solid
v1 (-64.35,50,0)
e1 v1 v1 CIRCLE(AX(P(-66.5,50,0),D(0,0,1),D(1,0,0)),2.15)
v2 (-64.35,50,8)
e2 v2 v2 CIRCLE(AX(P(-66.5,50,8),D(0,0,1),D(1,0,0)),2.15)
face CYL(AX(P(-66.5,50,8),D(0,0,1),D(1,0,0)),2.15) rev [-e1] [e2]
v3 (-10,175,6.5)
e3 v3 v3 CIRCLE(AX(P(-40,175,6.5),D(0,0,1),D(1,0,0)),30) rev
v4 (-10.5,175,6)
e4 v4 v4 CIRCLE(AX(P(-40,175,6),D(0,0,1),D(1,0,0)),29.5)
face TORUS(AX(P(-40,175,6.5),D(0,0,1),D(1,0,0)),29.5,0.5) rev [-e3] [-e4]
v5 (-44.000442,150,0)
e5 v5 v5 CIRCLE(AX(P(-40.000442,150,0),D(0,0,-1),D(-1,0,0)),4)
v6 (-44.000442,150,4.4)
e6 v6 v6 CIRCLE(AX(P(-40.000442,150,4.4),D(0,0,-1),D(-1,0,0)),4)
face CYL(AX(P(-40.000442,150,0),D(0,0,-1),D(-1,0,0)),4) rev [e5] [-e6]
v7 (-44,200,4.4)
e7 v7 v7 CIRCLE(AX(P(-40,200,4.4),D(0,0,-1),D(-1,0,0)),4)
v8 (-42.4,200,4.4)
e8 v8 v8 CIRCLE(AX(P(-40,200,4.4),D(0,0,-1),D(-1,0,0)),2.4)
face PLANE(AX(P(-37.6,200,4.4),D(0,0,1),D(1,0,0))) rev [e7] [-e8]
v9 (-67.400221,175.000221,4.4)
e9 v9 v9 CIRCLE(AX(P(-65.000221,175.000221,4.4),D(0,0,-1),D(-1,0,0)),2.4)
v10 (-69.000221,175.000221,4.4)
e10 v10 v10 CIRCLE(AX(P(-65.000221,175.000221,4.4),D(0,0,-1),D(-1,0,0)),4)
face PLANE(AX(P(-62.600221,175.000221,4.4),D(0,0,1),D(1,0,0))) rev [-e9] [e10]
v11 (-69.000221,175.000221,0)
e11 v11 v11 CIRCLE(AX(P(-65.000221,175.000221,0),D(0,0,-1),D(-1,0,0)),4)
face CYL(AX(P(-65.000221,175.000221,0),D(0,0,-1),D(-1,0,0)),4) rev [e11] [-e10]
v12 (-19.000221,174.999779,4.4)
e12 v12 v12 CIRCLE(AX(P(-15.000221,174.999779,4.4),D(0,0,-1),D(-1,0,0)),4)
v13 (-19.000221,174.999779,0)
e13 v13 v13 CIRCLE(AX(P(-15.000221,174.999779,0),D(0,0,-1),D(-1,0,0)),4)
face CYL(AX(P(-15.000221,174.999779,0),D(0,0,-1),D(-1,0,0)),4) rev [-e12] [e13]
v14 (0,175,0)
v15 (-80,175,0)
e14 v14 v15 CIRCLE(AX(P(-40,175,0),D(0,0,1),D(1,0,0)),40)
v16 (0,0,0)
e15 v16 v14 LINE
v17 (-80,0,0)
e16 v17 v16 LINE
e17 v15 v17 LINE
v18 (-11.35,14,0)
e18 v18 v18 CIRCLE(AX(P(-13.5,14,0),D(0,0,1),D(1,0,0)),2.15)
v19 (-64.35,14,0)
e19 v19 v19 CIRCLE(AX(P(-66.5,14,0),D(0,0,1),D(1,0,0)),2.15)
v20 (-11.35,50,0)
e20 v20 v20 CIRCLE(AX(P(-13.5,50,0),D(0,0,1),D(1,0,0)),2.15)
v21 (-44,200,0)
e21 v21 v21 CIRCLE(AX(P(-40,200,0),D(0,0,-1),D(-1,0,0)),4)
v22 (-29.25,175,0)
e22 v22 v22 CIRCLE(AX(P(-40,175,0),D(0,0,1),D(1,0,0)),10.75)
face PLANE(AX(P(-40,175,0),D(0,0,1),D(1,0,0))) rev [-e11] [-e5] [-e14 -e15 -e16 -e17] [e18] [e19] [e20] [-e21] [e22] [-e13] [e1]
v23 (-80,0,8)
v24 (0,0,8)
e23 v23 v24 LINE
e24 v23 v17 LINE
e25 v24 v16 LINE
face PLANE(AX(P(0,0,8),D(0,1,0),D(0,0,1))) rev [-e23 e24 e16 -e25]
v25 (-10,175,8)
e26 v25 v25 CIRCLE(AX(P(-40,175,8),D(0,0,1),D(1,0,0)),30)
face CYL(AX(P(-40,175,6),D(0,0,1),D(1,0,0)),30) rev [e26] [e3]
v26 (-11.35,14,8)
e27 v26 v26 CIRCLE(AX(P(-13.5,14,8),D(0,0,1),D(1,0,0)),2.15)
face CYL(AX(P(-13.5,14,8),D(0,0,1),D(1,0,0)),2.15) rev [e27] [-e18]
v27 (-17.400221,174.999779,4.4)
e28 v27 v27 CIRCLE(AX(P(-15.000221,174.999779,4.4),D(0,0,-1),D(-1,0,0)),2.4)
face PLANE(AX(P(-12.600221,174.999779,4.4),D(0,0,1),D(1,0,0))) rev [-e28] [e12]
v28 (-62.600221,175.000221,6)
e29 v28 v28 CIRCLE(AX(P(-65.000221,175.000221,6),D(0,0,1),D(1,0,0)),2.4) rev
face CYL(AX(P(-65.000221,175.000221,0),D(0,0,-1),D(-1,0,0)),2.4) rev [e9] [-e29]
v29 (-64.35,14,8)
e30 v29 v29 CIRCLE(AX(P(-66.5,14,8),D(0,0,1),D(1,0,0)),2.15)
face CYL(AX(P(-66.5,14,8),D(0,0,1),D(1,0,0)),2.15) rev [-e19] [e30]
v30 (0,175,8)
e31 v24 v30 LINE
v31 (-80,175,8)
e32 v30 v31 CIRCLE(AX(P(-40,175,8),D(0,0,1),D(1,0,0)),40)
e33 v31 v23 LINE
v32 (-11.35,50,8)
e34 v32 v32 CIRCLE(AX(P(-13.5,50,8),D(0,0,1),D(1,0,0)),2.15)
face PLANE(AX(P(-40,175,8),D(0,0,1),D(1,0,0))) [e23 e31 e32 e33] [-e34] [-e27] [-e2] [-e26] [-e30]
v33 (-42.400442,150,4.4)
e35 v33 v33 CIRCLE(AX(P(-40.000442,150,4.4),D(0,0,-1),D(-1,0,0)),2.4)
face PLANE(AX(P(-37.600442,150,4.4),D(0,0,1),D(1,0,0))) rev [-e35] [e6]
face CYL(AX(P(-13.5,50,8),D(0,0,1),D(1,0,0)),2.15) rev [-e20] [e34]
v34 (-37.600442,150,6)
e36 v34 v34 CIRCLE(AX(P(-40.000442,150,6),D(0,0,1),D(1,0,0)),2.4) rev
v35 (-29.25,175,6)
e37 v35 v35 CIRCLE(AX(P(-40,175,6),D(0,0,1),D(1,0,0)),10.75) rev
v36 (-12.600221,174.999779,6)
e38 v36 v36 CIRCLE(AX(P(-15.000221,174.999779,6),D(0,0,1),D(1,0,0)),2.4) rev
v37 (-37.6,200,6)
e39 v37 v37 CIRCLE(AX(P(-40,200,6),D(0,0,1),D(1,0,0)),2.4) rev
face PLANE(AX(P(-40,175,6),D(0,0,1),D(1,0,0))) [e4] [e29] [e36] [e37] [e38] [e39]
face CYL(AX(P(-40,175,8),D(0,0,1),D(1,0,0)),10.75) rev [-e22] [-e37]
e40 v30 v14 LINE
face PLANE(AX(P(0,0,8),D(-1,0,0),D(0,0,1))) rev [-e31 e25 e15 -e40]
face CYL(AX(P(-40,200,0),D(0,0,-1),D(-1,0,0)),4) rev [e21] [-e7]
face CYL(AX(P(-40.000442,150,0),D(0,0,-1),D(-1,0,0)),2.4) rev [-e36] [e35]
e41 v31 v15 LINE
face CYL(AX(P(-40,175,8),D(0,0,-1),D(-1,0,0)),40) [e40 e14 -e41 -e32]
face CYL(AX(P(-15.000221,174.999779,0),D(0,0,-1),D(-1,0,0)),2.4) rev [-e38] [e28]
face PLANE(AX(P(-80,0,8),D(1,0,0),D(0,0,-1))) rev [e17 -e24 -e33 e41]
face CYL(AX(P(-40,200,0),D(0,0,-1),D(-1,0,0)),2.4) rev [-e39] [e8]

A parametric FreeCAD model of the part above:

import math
import FreeCAD as App
import Part
import Sketcher
Q = App.Units.Quantity


def edges_at(feature, points):
    """Names of the edges that pass closest to the given points."""
    edges = feature.Shape.Edges
    near = lambda p: min(range(len(edges)), key=lambda i: edges[i].distToShape(Part.Vertex(*p))[0])
    return sorted({f"Edge{near(p) + 1}" for p in points})

doc = App.newDocument("Part")
body = doc.addObject("PartDesign::Body", "Body")

sketch1 = doc.addObject("Sketcher::SketchObject", "Sketch")
body.addObject(sketch1)
sketch1.AttachmentSupport = (doc.XY_Plane, [""])
sketch1.MapMode = "FlatFace"
sketch1.addGeometry(Part.LineSegment(App.Vector(-80, 0, 0), App.Vector(0, 0, 0)), False)
sketch1.addGeometry(Part.LineSegment(App.Vector(0, 0, 0), App.Vector(0, 175, 0)), False)
sketch1.addGeometry(Part.ArcOfCircle(Part.Circle(App.Vector(-40, 175, 0), App.Vector(0, 0, 1), 40), math.radians(0), math.radians(180)), False)
sketch1.addGeometry(Part.LineSegment(App.Vector(-80, 175, 0), App.Vector(-80, 0, 0)), False)
sketch1.addGeometry(Part.Circle(App.Vector(-40, 175, 0), App.Vector(0, 0, 1), 5), False)
sketch1.addConstraint(Sketcher.Constraint("Coincident", 0, 2, 1, 1))
sketch1.addConstraint(Sketcher.Constraint("Tangent", 1, 2, 2, 1))
sketch1.addConstraint(Sketcher.Constraint("Tangent", 2, 2, 3, 1))
sketch1.addConstraint(Sketcher.Constraint("Coincident", 3, 2, 0, 1))
sketch1.addConstraint(Sketcher.Constraint("Horizontal", 0))
sketch1.addConstraint(Sketcher.Constraint("Vertical", 1))
sketch1.addConstraint(Sketcher.Constraint("Vertical", 3))
sketch1.addConstraint(Sketcher.Constraint("Coincident", 0, 2, -1, 1))
sketch1.addConstraint(Sketcher.Constraint("Coincident", 4, 3, 2, 3))
sketch1.addConstraint(Sketcher.Constraint("Diameter", 4, Q("10 mm")))
sketch1.addConstraint(Sketcher.Constraint("Radius", 2, Q("40 mm")))
sketch1.addConstraint(Sketcher.Constraint("DistanceY", 1, 1, 1, 2, Q("175 mm")))
pad1 = doc.addObject("PartDesign::Pad", "Pad")
body.addObject(pad1)
pad1.Profile = sketch1
pad1.Length = 8

sketch2 = doc.addObject("Sketcher::SketchObject", "Sketch001")
body.addObject(sketch2)
sketch2.AttachmentSupport = (doc.XY_Plane, [""])
sketch2.MapMode = "FlatFace"
sketch2.AttachmentOffset = App.Placement(App.Vector(0, 0, 8), App.Rotation())
sketch2.addGeometry(Part.Circle(App.Vector(-66.5, 14, 0), App.Vector(0, 0, 1), 2.1), False)
sketch2.addGeometry(Part.Circle(App.Vector(-13.5, 14, 0), App.Vector(0, 0, 1), 2.1), False)
sketch2.addGeometry(Part.Circle(App.Vector(-13.5, 50, 0), App.Vector(0, 0, 1), 2.1), False)
sketch2.addGeometry(Part.Circle(App.Vector(-66.5, 50, 0), App.Vector(0, 0, 1), 2.1), False)
sketch2.addConstraint(Sketcher.Constraint("Equal", 0, 1))
sketch2.addConstraint(Sketcher.Constraint("Equal", 1, 2))
sketch2.addConstraint(Sketcher.Constraint("Equal", 2, 3))
sketch2.addConstraint(Sketcher.Constraint("Horizontal", 0, 3, 1, 3))
sketch2.addConstraint(Sketcher.Constraint("Horizontal", 2, 3, 3, 3))
sketch2.addConstraint(Sketcher.Constraint("Vertical", 1, 3, 2, 3))
sketch2.addConstraint(Sketcher.Constraint("Vertical", 0, 3, 3, 3))
sketch2.addConstraint(Sketcher.Constraint("Diameter", 0, Q("4.3 mm")))
sketch2.addConstraint(Sketcher.Constraint("DistanceY", -1, 1, 0, 3, Q("14 mm")))
sketch2.addConstraint(Sketcher.Constraint("DistanceY", -1, 1, 2, 3, Q("50 mm")))
sketch2.addConstraint(Sketcher.Constraint("DistanceX", 0, 3, 1, 3, Q("53 mm")))
sketch2.addConstraint(Sketcher.Constraint("DistanceX", 0, 3, -1, 1, Q("66.5 mm")))
doc.recompute()
hole = doc.addObject("PartDesign::Hole", "Hole")
body.addObject(hole)
hole.Profile = sketch2
hole.ThreadType = "None"
hole.Diameter = 4.3
hole.DepthType = "ThroughAll"

sketch3 = doc.addObject("Sketcher::SketchObject", "Sketch002")
body.addObject(sketch3)
sketch3.AttachmentSupport = (doc.XY_Plane, [""])
sketch3.MapMode = "FlatFace"
sketch3.AttachmentOffset = App.Placement(App.Vector(0, 0, 8), App.Rotation())
sketch3.addGeometry(Part.Circle(App.Vector(-40, 175, 0), App.Vector(0, 0, 1), 11), False)
sketch3.addConstraint(Sketcher.Constraint("Diameter", 0, Q("21.5 mm")))
sketch3.addConstraint(Sketcher.Constraint("DistanceX", 0, 3, -1, 1, Q("40 mm")))
sketch3.addConstraint(Sketcher.Constraint("DistanceY", -1, 1, 0, 3, Q("175 mm")))
doc.recompute()
hole2 = doc.addObject("PartDesign::Hole", "Hole001")
body.addObject(hole2)
hole2.Profile = sketch3
hole2.ThreadType = "None"
hole2.Diameter = 21.5
hole2.DepthType = "ThroughAll"

sketch4 = doc.addObject("Sketcher::SketchObject", "Sketch003")
body.addObject(sketch4)
sketch4.AttachmentSupport = (doc.XY_Plane, [""])
sketch4.MapMode = "FlatFace"
sketch4.addGeometry(Part.Circle(App.Vector(-40, 200, 0), App.Vector(0, 0, 1), 2.4), False)
sketch4.addGeometry(Part.Circle(App.Vector(-15, 175, 0), App.Vector(0, 0, 1), 2.4), False)
sketch4.addGeometry(Part.Circle(App.Vector(-40, 150, 0), App.Vector(0, 0, 1), 2.4), False)
sketch4.addGeometry(Part.Circle(App.Vector(-65, 175, 0), App.Vector(0, 0, 1), 2.4), False)
sketch4.addConstraint(Sketcher.Constraint("Equal", 0, 1))
sketch4.addConstraint(Sketcher.Constraint("Equal", 1, 2))
sketch4.addConstraint(Sketcher.Constraint("Equal", 2, 3))
sketch4.addConstraint(Sketcher.Constraint("Diameter", 0, Q("4.8 mm")))
sketch4.addConstraint(Sketcher.Constraint("DistanceX", 0, 3, -1, 1, Q("40 mm")))
sketch4.addConstraint(Sketcher.Constraint("DistanceY", -1, 1, 0, 3, Q("200 mm")))
sketch4.addConstraint(Sketcher.Constraint("DistanceY", -1, 1, 2, 3, Q("150 mm")))
sketch4.addConstraint(Sketcher.Constraint("DistanceX", 3, 3, 1, 3, Q("50 mm")))
sketch4.addConstraint(Sketcher.Constraint("DistanceX", 1, 3, -1, 1, Q("15.000221 mm")))
sketch4.addConstraint(Sketcher.Constraint("DistanceY", -1, 1, 1, 3, Q("174.999779 mm")))
sketch4.addConstraint(Sketcher.Constraint("DistanceY", -1, 1, 3, 3, Q("175.000221 mm")))
sketch4.addConstraint(Sketcher.Constraint("DistanceX", 2, 3, 1, 3, Q("25.000221 mm")))
doc.recompute()
hole3 = doc.addObject("PartDesign::Hole", "Hole002")
body.addObject(hole3)
hole3.Profile = sketch4
hole3.ThreadType = "None"
hole3.Diameter = 4.8
hole3.DepthType = "ThroughAll"
hole3.HoleCutType = "Counterbore"
hole3.HoleCutDiameter = 8
hole3.HoleCutDepth = 4.4
hole3.Reversed = True

sketch5 = doc.addObject("Sketcher::SketchObject", "Sketch004")
body.addObject(sketch5)
sketch5.AttachmentSupport = (doc.XY_Plane, [""])
sketch5.MapMode = "FlatFace"
sketch5.AttachmentOffset = App.Placement(App.Vector(0, 0, 8), App.Rotation())
sketch5.addGeometry(Part.Circle(App.Vector(-40, 175, 0), App.Vector(0, 0, 1), 30), False)
sketch5.addConstraint(Sketcher.Constraint("Diameter", 0, Q("60 mm")))
sketch5.addConstraint(Sketcher.Constraint("DistanceX", 0, 3, -1, 1, Q("40 mm")))
sketch5.addConstraint(Sketcher.Constraint("DistanceY", -1, 1, 0, 3, Q("175 mm")))
pocket1 = doc.addObject("PartDesign::Pocket", "Pocket")
body.addObject(pocket1)
pocket1.Profile = sketch5
pocket1.Length = 2
doc.recompute()

fillet = doc.addObject("PartDesign::Fillet", "Fillet")
body.addObject(fillet)
fillet.Base = (pocket1, edges_at(pocket1, [(-70, 175, 6)]))
fillet.Radius = 0.5

doc.recompute()
